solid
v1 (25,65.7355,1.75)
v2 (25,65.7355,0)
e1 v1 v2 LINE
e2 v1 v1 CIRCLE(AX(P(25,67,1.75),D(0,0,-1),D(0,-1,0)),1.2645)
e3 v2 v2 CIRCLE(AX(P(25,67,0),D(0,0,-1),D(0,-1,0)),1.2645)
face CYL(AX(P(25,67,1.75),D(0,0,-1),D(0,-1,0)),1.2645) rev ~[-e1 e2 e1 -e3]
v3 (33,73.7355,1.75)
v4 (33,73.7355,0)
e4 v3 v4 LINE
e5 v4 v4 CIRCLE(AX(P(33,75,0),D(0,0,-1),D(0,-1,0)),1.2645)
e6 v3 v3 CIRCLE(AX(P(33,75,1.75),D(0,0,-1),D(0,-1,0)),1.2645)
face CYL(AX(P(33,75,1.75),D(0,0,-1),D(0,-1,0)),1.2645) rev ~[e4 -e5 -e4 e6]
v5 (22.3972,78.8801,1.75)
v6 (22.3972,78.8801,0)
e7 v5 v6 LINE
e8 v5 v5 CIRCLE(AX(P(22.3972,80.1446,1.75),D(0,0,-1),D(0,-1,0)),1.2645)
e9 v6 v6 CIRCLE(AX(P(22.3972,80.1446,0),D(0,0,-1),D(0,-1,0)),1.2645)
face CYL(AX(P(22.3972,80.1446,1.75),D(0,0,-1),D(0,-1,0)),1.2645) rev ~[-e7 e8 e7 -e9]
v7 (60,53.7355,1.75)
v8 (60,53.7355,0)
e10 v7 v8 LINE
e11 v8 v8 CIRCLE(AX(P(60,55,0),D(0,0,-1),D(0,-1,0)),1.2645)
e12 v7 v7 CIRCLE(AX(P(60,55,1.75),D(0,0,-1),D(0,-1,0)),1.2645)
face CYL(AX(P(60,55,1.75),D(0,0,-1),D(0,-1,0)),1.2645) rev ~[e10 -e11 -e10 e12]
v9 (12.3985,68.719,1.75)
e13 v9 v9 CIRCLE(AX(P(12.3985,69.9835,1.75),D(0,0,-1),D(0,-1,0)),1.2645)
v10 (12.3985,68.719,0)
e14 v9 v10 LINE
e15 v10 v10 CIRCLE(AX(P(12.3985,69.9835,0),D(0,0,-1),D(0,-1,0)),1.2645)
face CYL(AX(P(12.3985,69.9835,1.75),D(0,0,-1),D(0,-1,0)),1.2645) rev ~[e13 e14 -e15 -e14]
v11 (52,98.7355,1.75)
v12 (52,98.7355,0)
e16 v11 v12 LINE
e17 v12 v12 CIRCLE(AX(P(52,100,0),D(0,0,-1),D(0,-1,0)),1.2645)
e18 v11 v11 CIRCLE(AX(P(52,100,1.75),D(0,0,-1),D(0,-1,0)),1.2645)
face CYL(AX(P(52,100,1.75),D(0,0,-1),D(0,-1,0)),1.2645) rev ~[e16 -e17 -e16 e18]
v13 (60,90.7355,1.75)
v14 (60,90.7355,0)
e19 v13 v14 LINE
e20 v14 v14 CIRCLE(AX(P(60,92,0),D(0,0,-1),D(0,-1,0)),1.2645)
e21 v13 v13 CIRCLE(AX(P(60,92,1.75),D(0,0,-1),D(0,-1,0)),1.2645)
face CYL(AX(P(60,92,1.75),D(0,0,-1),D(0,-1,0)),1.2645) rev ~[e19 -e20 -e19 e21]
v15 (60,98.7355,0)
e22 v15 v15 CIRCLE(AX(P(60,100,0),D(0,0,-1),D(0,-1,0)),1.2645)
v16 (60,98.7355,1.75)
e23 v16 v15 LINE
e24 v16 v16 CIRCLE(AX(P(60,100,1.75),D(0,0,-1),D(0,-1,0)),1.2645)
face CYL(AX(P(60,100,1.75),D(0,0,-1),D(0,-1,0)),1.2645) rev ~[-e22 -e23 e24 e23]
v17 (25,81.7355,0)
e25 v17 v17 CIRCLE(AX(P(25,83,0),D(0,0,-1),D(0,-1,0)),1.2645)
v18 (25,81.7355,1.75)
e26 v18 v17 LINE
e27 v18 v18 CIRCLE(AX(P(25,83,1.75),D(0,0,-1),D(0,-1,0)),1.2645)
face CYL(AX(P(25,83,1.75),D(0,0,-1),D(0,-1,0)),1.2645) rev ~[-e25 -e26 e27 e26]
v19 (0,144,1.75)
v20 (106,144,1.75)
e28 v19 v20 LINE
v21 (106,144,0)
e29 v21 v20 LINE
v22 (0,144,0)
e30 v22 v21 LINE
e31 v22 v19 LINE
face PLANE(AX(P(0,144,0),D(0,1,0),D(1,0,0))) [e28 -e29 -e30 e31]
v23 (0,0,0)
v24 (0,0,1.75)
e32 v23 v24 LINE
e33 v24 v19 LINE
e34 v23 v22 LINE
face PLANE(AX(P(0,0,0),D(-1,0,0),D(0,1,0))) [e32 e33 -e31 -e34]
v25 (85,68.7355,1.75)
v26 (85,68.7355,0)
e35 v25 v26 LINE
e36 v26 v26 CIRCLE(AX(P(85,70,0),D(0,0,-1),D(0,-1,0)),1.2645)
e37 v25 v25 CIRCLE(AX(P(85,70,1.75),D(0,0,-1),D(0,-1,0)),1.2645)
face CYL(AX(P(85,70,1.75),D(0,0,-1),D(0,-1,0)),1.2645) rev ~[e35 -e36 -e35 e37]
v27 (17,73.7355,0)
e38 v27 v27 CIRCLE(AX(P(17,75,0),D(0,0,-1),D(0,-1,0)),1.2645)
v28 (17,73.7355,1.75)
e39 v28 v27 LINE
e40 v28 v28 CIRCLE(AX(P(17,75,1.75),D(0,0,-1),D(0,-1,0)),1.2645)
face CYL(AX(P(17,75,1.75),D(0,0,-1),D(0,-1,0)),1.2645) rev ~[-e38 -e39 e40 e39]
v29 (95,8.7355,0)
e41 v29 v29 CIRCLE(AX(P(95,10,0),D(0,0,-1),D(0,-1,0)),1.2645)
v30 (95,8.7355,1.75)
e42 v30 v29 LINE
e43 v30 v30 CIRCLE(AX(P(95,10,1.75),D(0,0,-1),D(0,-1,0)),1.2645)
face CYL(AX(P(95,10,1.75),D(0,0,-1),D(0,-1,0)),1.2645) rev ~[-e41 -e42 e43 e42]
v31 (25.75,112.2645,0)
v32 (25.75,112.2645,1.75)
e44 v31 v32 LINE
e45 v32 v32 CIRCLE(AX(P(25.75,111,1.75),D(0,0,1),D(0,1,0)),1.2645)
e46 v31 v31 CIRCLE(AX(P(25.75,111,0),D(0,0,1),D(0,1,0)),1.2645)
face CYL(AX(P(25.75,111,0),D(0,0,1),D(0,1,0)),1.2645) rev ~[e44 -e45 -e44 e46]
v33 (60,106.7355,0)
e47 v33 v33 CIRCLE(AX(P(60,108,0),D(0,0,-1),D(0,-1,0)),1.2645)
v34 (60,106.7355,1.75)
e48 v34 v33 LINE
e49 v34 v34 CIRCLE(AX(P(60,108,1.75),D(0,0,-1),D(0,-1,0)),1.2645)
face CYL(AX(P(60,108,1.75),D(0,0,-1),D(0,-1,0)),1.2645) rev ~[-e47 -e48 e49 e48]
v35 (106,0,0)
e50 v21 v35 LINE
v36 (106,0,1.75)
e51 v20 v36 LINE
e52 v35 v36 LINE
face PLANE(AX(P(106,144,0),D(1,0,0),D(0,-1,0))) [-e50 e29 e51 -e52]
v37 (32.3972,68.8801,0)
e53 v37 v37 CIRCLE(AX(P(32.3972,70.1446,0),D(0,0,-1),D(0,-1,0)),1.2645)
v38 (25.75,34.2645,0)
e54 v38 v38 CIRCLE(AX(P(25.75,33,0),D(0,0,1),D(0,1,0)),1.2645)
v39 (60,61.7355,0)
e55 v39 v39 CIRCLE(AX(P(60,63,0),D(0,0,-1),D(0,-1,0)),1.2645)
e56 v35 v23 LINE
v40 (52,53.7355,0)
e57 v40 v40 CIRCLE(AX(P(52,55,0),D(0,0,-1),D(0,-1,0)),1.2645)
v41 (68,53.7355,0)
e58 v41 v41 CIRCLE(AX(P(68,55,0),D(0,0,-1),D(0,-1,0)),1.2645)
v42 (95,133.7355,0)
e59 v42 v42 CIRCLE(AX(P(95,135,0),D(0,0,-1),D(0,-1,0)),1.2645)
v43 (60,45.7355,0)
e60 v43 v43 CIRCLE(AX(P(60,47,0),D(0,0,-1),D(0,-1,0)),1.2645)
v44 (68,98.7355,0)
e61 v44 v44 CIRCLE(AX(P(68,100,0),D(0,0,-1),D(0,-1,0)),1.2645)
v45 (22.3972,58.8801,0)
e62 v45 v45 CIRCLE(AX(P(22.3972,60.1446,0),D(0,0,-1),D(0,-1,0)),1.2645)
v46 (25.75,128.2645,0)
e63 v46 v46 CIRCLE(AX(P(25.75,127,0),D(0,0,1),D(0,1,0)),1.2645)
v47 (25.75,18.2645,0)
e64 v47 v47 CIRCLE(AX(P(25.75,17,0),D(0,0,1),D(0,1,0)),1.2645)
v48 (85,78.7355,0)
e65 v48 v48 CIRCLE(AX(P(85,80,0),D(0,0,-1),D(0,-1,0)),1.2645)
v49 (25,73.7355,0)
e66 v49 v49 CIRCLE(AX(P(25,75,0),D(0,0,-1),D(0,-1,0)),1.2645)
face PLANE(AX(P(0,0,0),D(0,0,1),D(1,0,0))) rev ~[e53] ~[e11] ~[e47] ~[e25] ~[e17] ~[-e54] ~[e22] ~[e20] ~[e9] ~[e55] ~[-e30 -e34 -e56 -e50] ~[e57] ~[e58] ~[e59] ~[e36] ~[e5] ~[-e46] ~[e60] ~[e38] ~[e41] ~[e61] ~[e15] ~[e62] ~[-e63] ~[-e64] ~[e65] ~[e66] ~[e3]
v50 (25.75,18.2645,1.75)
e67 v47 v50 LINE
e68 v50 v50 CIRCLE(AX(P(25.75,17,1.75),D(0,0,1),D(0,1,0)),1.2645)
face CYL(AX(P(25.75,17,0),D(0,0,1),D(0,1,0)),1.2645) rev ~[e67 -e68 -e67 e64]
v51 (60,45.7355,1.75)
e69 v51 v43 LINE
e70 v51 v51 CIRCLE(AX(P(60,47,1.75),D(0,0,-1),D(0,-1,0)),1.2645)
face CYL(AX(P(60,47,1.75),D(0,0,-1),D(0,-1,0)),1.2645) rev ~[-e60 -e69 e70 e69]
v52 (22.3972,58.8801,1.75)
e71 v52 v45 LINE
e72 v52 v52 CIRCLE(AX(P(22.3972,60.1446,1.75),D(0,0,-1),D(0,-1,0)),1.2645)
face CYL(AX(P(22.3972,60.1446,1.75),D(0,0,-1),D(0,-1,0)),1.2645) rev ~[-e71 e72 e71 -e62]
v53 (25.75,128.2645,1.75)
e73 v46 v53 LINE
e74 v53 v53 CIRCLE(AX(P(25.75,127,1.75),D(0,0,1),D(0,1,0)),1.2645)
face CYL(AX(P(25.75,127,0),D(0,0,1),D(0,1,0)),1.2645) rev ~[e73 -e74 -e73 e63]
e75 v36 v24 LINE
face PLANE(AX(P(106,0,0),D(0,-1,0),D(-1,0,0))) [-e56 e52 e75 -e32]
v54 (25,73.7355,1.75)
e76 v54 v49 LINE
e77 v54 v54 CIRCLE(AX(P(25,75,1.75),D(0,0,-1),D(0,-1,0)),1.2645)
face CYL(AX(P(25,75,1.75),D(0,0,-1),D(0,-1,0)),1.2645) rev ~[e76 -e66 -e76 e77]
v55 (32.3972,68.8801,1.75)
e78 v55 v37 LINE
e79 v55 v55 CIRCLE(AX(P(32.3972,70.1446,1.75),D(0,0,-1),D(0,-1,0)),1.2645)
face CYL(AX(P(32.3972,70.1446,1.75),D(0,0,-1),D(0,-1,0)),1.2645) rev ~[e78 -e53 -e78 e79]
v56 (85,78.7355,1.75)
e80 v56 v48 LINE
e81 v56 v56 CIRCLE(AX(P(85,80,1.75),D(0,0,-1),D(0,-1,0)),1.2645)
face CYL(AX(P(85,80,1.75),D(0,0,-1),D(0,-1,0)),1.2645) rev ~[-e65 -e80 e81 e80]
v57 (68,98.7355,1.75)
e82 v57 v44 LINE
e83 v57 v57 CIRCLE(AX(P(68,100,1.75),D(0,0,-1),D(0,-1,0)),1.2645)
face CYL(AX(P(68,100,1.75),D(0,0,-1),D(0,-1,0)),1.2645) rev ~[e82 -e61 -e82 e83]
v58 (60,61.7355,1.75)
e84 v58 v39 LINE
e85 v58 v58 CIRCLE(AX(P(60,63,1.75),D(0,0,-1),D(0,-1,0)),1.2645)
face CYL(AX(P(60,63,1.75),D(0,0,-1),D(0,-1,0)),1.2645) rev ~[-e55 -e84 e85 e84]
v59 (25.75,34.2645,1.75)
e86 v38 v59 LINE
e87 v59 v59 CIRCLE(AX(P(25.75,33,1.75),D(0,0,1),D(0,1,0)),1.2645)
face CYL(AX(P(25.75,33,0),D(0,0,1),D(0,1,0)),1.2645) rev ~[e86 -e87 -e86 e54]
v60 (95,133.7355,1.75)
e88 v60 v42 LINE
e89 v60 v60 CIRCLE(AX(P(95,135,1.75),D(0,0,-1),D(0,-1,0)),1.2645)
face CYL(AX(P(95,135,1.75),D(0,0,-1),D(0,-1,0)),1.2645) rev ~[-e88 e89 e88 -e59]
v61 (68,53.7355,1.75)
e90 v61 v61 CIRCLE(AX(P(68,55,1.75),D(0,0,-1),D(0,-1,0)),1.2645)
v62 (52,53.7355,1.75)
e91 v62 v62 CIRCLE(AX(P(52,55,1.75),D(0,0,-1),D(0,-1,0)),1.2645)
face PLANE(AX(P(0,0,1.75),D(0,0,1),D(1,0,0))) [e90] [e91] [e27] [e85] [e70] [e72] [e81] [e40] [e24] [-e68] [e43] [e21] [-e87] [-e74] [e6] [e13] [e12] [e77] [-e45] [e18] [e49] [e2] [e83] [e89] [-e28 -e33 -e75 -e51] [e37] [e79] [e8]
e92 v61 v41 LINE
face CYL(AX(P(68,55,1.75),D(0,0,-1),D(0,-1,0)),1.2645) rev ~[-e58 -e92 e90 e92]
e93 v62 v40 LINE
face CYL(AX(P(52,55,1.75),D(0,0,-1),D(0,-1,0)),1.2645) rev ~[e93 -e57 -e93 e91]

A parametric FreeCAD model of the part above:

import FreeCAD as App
import Part
import Sketcher


def add_polygon(sketch, points):
    """Adds a closed chain of lines whose ends are joined by coincident constraints."""
    first, n = sketch.GeometryCount, len(points)
    for a, b in zip(points, points[1:] + points[:1]):
        sketch.addGeometry(Part.LineSegment(App.Vector(*a, 0), App.Vector(*b, 0)), False)
    for i in range(n):
        sketch.addConstraint(Sketcher.Constraint("Coincident", first + i, 2, first + (i + 1) % n, 1))

doc = App.newDocument("Part")
body = doc.addObject("PartDesign::Body", "Body")

sketch1 = body.newObject("Sketcher::SketchObject", "Sketch")
sketch1.AttachmentSupport = (doc.getObject("XY_Plane"), [""])
sketch1.MapMode = "FlatFace"
add_polygon(sketch1, [(106, 144), (0, 144), (0, 0), (106, 0)])
sketch1.addConstraint([
    Sketcher.Constraint("Horizontal", 0),
    Sketcher.Constraint("Vertical", 1),
    Sketcher.Constraint("Horizontal", 2),
    Sketcher.Constraint("Vertical", 3),
    Sketcher.Constraint("Coincident", 1, 2, -1, 1),
    Sketcher.Constraint("DistanceX", 0, 2, 0, 1, 106.0),
    Sketcher.Constraint("DistanceY", 1, 2, 1, 1, 144.0),
])
pad1 = body.newObject("PartDesign::Pad", "Pad")
pad1.Profile = sketch1
pad1.Length = 1.75

sketch2 = body.newObject("Sketcher::SketchObject", "Sketch001")
sketch2.AttachmentSupport = (doc.getObject("XY_Plane"), [""])
sketch2.MapMode = "FlatFace"
sketch2.addGeometry([
    Part.Circle(App.Vector(25.8, 127, 0), App.Vector(0, 0, 1), 1.3),
    Part.Circle(App.Vector(25.8, 111, 0), App.Vector(0, 0, 1), 1.3),
    Part.Circle(App.Vector(25.8, 33, 0), App.Vector(0, 0, 1), 1.3),
    Part.Circle(App.Vector(25.8, 17, 0), App.Vector(0, 0, 1), 1.3),
], False)
sketch2.addConstraint([
    Sketcher.Constraint("Equal", 0, 1),
    Sketcher.Constraint("Equal", 1, 2),
    Sketcher.Constraint("Equal", 2, 3),
    Sketcher.Constraint("Vertical", 0, 3, 1, 3),
    Sketcher.Constraint("Vertical", 1, 3, 2, 3),
    Sketcher.Constraint("Vertical", 2, 3, 3, 3),
    Sketcher.Constraint("Diameter", 0, 2.529),
    Sketcher.Constraint("DistanceY", -1, 1, 0, 3, 127.0),
    Sketcher.Constraint("DistanceY", -1, 1, 1, 3, 111.0),
    Sketcher.Constraint("DistanceY", -1, 1, 2, 3, 33.0),
    Sketcher.Constraint("DistanceY", -1, 1, 3, 3, 17.0),
    Sketcher.Constraint("DistanceX", -1, 1, 0, 3, 25.75),
])
doc.recompute()
hole = body.newObject("PartDesign::Hole", "Hole")
hole.Profile = sketch2
hole.ThreadType = "None"
hole.Diameter = 2.529
hole.DepthType = "Dimension"
hole.Depth = 20
hole.DrillPoint = "Angled"
hole.DrillPointAngle = 118
hole.Reversed = True

sketch3 = body.newObject("Sketcher::SketchObject", "Sketch002")
sketch3.AttachmentSupport = (doc.getObject("XY_Plane"), [""])
sketch3.MapMode = "FlatFace"
sketch3.AttachmentOffset = App.Placement(App.Vector(0, 0, 1.75), App.Rotation())
sketch3.addGeometry([
    Part.Circle(App.Vector(60, 108, 0), App.Vector(0, 0, 1), 1.3),
    Part.Circle(App.Vector(68, 100, 0), App.Vector(0, 0, 1), 1.3),
    Part.Circle(App.Vector(52, 100, 0), App.Vector(0, 0, 1), 1.3),
    Part.Circle(App.Vector(60, 92, 0), App.Vector(0, 0, 1), 1.3),
    Part.Circle(App.Vector(60, 100, 0), App.Vector(0, 0, 1), 1.3),
    Part.Circle(App.Vector(85, 80, 0), App.Vector(0, 0, 1), 1.3),
    Part.Circle(App.Vector(85, 70, 0), App.Vector(0, 0, 1), 1.3),
    Part.Circle(App.Vector(60, 55, 0), App.Vector(0, 0, 1), 1.3),
    Part.Circle(App.Vector(52, 55, 0), App.Vector(0, 0, 1), 1.3),
    Part.Circle(App.Vector(60, 63, 0), App.Vector(0, 0, 1), 1.3),
    Part.Circle(App.Vector(68, 55, 0), App.Vector(0, 0, 1), 1.3),
    Part.Circle(App.Vector(60, 47, 0), App.Vector(0, 0, 1), 1.3),
], False)
sketch3.addConstraint([
    Sketcher.Constraint("Equal", 0, 1),
    Sketcher.Constraint("Equal", 1, 2),
    Sketcher.Constraint("Equal", 2, 3),
    Sketcher.Constraint("Equal", 3, 4),
    Sketcher.Constraint("Equal", 4, 5),
    Sketcher.Constraint("Equal", 5, 6),
    Sketcher.Constraint("Equal", 6, 7),
    Sketcher.Constraint("Equal", 7, 8),
    Sketcher.Constraint("Equal", 8, 9),
    Sketcher.Constraint("Equal", 9, 10),
    Sketcher.Constraint("Equal", 10, 11),
    Sketcher.Constraint("Horizontal", 1, 3, 2, 3),
    Sketcher.Constraint("Horizontal", 2, 3, 4, 3),
    Sketcher.Constraint("Horizontal", 7, 3, 8, 3),
    Sketcher.Constraint("Horizontal", 8, 3, 10, 3),
    Sketcher.Constraint("Vertical", 0, 3, 3, 3),
    Sketcher.Constraint("Vertical", 3, 3, 4, 3),
    Sketcher.Constraint("Vertical", 5, 3, 6, 3),
    Sketcher.Constraint("Vertical", 4, 3, 7, 3),
    Sketcher.Constraint("Vertical", 2, 3, 8, 3),
    Sketcher.Constraint("Vertical", 7, 3, 9, 3),
    Sketcher.Constraint("Vertical", 1, 3, 10, 3),
    Sketcher.Constraint("Vertical", 9, 3, 11, 3),
    Sketcher.Constraint("Diameter", 0, 2.529),
    Sketcher.Constraint("DistanceX", -1, 1, 0, 3, 60.0),
    Sketcher.Constraint("DistanceY", -1, 1, 0, 3, 108.0),
    Sketcher.Constraint("DistanceX", -1, 1, 1, 3, 68.0),
    Sketcher.Constraint("DistanceY", -1, 1, 1, 3, 100.0),
    Sketcher.Constraint("DistanceX", -1, 1, 2, 3, 52.0),
    Sketcher.Constraint("DistanceY", -1, 1, 3, 3, 92.0),
    Sketcher.Constraint("DistanceX", -1, 1, 5, 3, 85.0),
    Sketcher.Constraint("DistanceY", -1, 1, 5, 3, 80.0),
    Sketcher.Constraint("DistanceY", -1, 1, 6, 3, 70.0),
    Sketcher.Constraint("DistanceY", -1, 1, 7, 3, 55.0),
    Sketcher.Constraint("DistanceY", -1, 1, 9, 3, 63.0),
    Sketcher.Constraint("DistanceY", -1, 1, 11, 3, 47.0),
])
doc.recompute()
hole2 = body.newObject("PartDesign::Hole", "Hole001")
hole2.Profile = sketch3
hole2.ThreadType = "None"
hole2.Diameter = 2.529
hole2.DepthType = "Dimension"
hole2.Depth = 15
hole2.DrillPoint = "Angled"
hole2.DrillPointAngle = 118

sketch4 = body.newObject("Sketcher::SketchObject", "Sketch003")
sketch4.AttachmentSupport = (doc.getObject("XY_Plane"), [""])
sketch4.MapMode = "FlatFace"
sketch4.AttachmentOffset = App.Placement(App.Vector(0, 0, 1.75), App.Rotation())
sketch4.addGeometry([
    Part.Circle(App.Vector(95, 135, 0), App.Vector(0, 0, 1), 1.3),
    Part.Circle(App.Vector(95, 10, 0), App.Vector(0, 0, 1), 1.3),
], False)
sketch4.addConstraint([
    Sketcher.Constraint("Equal", 0, 1),
    Sketcher.Constraint("Vertical", 0, 3, 1, 3),
    Sketcher.Constraint("Diameter", 0, 2.529),
    Sketcher.Constraint("DistanceX", -1, 1, 0, 3, 95.0),
    Sketcher.Constraint("DistanceY", -1, 1, 0, 3, 135.0),
    Sketcher.Constraint("DistanceY", -1, 1, 1, 3, 10.0),
])
doc.recompute()
hole3 = body.newObject("PartDesign::Hole", "Hole002")
hole3.Profile = sketch4
hole3.ThreadType = "None"
hole3.Diameter = 2.529
hole3.DepthType = "Dimension"
hole3.Depth = 15
hole3.DrillPoint = "Angled"
hole3.DrillPointAngle = 118

sketch5 = body.newObject("Sketcher::SketchObject", "Sketch004")
sketch5.AttachmentSupport = (doc.getObject("XY_Plane"), [""])
sketch5.MapMode = "FlatFace"
sketch5.AttachmentOffset = App.Placement(App.Vector(0, 0, 1.75), App.Rotation())
sketch5.addGeometry([
    Part.Circle(App.Vector(25, 67, 0), App.Vector(0, 0, 1), 1.3),
    Part.Circle(App.Vector(17, 75, 0), App.Vector(0, 0, 1), 1.3),
    Part.Circle(App.Vector(25, 75, 0), App.Vector(0, 0, 1), 1.3),
], False)
sketch5.addConstraint([
    Sketcher.Constraint("Equal", 0, 1),
    Sketcher.Constraint("Equal", 1, 2),
    Sketcher.Constraint("Horizontal", 1, 3, 2, 3),
    Sketcher.Constraint("Vertical", 0, 3, 2, 3),
    Sketcher.Constraint("Diameter", 0, 2.529),
    Sketcher.Constraint("DistanceX", -1, 1, 0, 3, 25.0),
    Sketcher.Constraint("DistanceY", -1, 1, 0, 3, 67.0),
    Sketcher.Constraint("DistanceX", -1, 1, 1, 3, 17.0),
    Sketcher.Constraint("DistanceY", -1, 1, 1, 3, 75.0),
])
doc.recompute()
hole4 = body.newObject("PartDesign::Hole", "Hole003")
hole4.Profile = sketch5
hole4.ThreadType = "None"
hole4.Diameter = 2.529
hole4.DepthType = "Dimension"
hole4.Depth = 5
hole4.DrillPoint = "Angled"
hole4.DrillPointAngle = 118

sketch6 = body.newObject("Sketcher::SketchObject", "Sketch005")
sketch6.AttachmentSupport = (doc.getObject("XY_Plane"), [""])
sketch6.MapMode = "FlatFace"
sketch6.AttachmentOffset = App.Placement(App.Vector(0, 0, 1.75), App.Rotation())
sketch6.addGeometry([
    Part.Circle(App.Vector(33, 75, 0), App.Vector(0, 0, 1), 1.3),
    Part.Circle(App.Vector(25, 83, 0), App.Vector(0, 0, 1), 1.3),
], False)
sketch6.addConstraint([
    Sketcher.Constraint("Equal", 0, 1),
    Sketcher.Constraint("Diameter", 0, 2.529),
    Sketcher.Constraint("DistanceX", -1, 1, 0, 3, 33.0),
    Sketcher.Constraint("DistanceY", -1, 1, 0, 3, 75.0),
    Sketcher.Constraint("DistanceX", -1, 1, 1, 3, 25.0),
    Sketcher.Constraint("DistanceY", -1, 1, 1, 3, 83.0),
])
doc.recompute()
hole5 = body.newObject("PartDesign::Hole", "Hole004")
hole5.Profile = sketch6
hole5.ThreadType = "None"
hole5.Diameter = 2.529
hole5.DepthType = "Dimension"
hole5.Depth = 5
hole5.DrillPoint = "Angled"
hole5.DrillPointAngle = 118

sketch7 = body.newObject("Sketcher::SketchObject", "Sketch006")
sketch7.AttachmentSupport = (doc.getObject("XY_Plane"), [""])
sketch7.MapMode = "FlatFace"
sketch7.AttachmentOffset = App.Placement(App.Vector(0, 0, 1.75), App.Rotation())
sketch7.addGeometry([
    Part.Circle(App.Vector(22.4, 60.1, 0), App.Vector(0, 0, 1), 1.3),
    Part.Circle(App.Vector(12.4, 70, 0), App.Vector(0, 0, 1), 1.3),
    Part.Circle(App.Vector(22.4, 80.1, 0), App.Vector(0, 0, 1), 1.3),
    Part.Circle(App.Vector(32.4, 70.1, 0), App.Vector(0, 0, 1), 1.3),
], False)
sketch7.addConstraint([
    Sketcher.Constraint("Equal", 0, 1),
    Sketcher.Constraint("Equal", 1, 2),
    Sketcher.Constraint("Equal", 2, 3),
    Sketcher.Constraint("Vertical", 0, 3, 2, 3),
    Sketcher.Constraint("Diameter", 0, 2.529),
    Sketcher.Constraint("DistanceY", 0, 3, 2, 3, 20.0),
    Sketcher.Constraint("DistanceX", 0, 3, 3, 3, 10.0),
    Sketcher.Constraint("DistanceY", 0, 3, 3, 3, 10.0),
    Sketcher.Constraint("DistanceY", 0, 3, 1, 3, 9.839),
    Sketcher.Constraint("DistanceX", -1, 1, 0, 3, 22.3972),
    Sketcher.Constraint("DistanceY", -1, 1, 0, 3, 60.1446),
    Sketcher.Constraint("DistanceX", -1, 1, 1, 3, 12.3985),
])
doc.recompute()
hole6 = body.newObject("PartDesign::Hole", "Hole005")
hole6.Profile = sketch7
hole6.ThreadType = "None"
hole6.Diameter = 2.529
hole6.DepthType = "Dimension"
hole6.Depth = 7
hole6.DrillPoint = "Angled"
hole6.DrillPointAngle = 118

doc.recompute()
